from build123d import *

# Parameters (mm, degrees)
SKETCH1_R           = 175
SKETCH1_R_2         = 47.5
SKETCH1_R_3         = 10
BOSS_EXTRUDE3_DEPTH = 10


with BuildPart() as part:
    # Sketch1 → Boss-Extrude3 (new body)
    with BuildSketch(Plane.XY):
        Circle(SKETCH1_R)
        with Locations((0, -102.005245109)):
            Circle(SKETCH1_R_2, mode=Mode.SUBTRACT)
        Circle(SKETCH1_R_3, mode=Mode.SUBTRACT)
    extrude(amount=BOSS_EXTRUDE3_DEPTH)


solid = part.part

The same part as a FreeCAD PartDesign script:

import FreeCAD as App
import Part
import Sketcher

V = App.Vector

doc = App.newDocument("Part")
body = doc.addObject("PartDesign::Body", "Body")

# Sketch on XY plane
sketch1 = body.newObject("Sketcher::SketchObject", "Sketch")
sketch1.AttachmentSupport = (doc.getObject("XY_Plane"), [""])
sketch1.MapMode = "FlatFace"
sketch1.addGeometry(Part.Circle(V(0, 0, 0), V(0, 0, 1), 175), False)
sketch1.addGeometry(Part.Circle(V(0, -102.005245, 0), V(0, 0, 1), 47.5), False)
sketch1.addGeometry(Part.Circle(V(0, 0, 0), V(0, 0, 1), 10), False)
sketch1.addConstraint(Sketcher.Constraint("Coincident", 0, 3, -1, 1))
sketch1.addConstraint(Sketcher.Constraint("Coincident", 2, 3, -1, 1))
sketch1.addConstraint(Sketcher.Constraint("PointOnObject", 1, 3, -2))
sketch1.addConstraint(Sketcher.Constraint("Diameter", 0, 350.0))
sketch1.addConstraint(Sketcher.Constraint("Diameter", 1, 95.0))
sketch1.addConstraint(Sketcher.Constraint("Diameter", 2, 20.0))
sketch1.addConstraint(Sketcher.Constraint("DistanceY", 1, 3, -1, 1, 102.005245))
pad1 = body.newObject("PartDesign::Pad", "Pad")
pad1.Profile = sketch1
pad1.Length = 10

doc.recompute()
